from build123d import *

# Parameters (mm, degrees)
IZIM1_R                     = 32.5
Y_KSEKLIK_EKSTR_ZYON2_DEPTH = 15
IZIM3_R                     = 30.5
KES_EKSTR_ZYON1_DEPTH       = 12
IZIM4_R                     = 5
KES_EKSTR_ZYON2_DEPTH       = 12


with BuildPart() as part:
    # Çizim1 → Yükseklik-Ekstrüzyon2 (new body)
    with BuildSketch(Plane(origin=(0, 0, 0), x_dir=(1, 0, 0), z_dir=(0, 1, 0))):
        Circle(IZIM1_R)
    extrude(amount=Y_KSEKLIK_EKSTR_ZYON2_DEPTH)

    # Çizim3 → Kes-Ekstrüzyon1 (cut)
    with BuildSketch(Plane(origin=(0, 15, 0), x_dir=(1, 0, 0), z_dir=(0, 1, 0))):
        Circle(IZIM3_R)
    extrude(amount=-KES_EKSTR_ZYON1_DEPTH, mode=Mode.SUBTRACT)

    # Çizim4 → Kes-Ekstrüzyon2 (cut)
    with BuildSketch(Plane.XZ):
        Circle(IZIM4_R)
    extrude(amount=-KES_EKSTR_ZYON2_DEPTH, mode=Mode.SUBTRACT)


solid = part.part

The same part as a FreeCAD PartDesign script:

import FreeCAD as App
import Part
import Sketcher
from FreeCAD import Vector

doc = App.newDocument("Part")
params = doc.addObject("Spreadsheet::Sheet", "Params")
for row, (alias, value) in enumerate([
    ("sketch1_diameter", "65 mm"),
    ("pad1_length", "15 mm"),
    ("sketch2_diameter", "61 mm"),
    ("pocket1_length", "12 mm"),
    ("sketch3_diameter", "10 mm"),
    ("pocket2_length", "12 mm"),
], start=1):
    params.set(f"A{row}", alias)
    params.set(f"B{row}", "=" + value)
    params.setAlias(f"B{row}", alias)

body = doc.addObject("PartDesign::Body", "Body")

# Sketch on XZ plane
sketch1 = body.newObject("Sketcher::SketchObject", "Sketch")
sketch1.AttachmentSupport = (doc.getObject("XZ_Plane"), [""])
sketch1.MapMode = "FlatFace"
sketch1.addGeometry(Part.Circle(Vector(0, 0, 0), Vector(0, 0, 1), 32), False)
sketch1.addConstraint(Sketcher.Constraint("Coincident", 0, 3, -1, 1))
sketch1.addConstraint(Sketcher.Constraint("Diameter", 0, 65.0))
sketch1.setExpression("Constraints[1]", "Params.sketch1_diameter")
pad1 = body.newObject("PartDesign::Pad", "Pad")
pad1.Profile = sketch1
pad1.setExpression("Length", "Params.pad1_length")
pad1.Reversed = True

# Sketch on XZ plane
sketch2 = body.newObject("Sketcher::SketchObject", "Sketch001")
sketch2.AttachmentSupport = (doc.getObject("XZ_Plane"), [""])
sketch2.MapMode = "FlatFace"
sketch2.AttachmentOffset = App.Placement(Vector(0, 0, -15), App.Rotation())
sketch2.addGeometry(Part.Circle(Vector(0, 0, 0), Vector(0, 0, 1), 30), False)
sketch2.addConstraint(Sketcher.Constraint("Coincident", 0, 3, -1, 1))
sketch2.addConstraint(Sketcher.Constraint("Diameter", 0, 61.0))
sketch2.setExpression("Constraints[1]", "Params.sketch2_diameter")
pocket1 = body.newObject("PartDesign::Pocket", "Pocket")
pocket1.Profile = sketch2
pocket1.setExpression("Length", "Params.pocket1_length")
pocket1.Reversed = True

# Sketch on XZ plane
sketch3 = body.newObject("Sketcher::SketchObject", "Sketch002")
sketch3.AttachmentSupport = (doc.getObject("XZ_Plane"), [""])
sketch3.MapMode = "FlatFace"
sketch3.addGeometry(Part.Circle(Vector(0, 0, 0), Vector(0, 0, 1), 5), False)
sketch3.addConstraint(Sketcher.Constraint("Coincident", 0, 3, -1, 1))
sketch3.addConstraint(Sketcher.Constraint("Diameter", 0, 10.0))
sketch3.setExpression("Constraints[1]", "Params.sketch3_diameter")
pocket2 = body.newObject("PartDesign::Pocket", "Pocket001")
pocket2.Profile = sketch3
pocket2.setExpression("Length", "Params.pocket2_length")

doc.recompute()
